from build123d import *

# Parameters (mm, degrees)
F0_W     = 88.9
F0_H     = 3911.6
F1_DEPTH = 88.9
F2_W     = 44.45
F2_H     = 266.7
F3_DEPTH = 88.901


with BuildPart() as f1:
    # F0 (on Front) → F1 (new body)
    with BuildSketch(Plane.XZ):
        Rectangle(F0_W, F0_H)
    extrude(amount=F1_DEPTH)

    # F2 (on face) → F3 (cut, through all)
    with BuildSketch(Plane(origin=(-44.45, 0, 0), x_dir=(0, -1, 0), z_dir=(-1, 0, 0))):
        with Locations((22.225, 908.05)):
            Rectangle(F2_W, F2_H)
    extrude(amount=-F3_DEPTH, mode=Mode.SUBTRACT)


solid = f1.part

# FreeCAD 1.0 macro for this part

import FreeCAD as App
import Part
import Sketcher
Q = App.Units.Quantity


def add_polygon(sketch, points):
    """Adds a closed chain of lines whose ends are joined by coincident constraints."""
    first, n = sketch.GeometryCount, len(points)
    for a, b in zip(points, points[1:] + points[:1]):
        sketch.addGeometry(Part.LineSegment(App.Vector(*a, 0), App.Vector(*b, 0)), False)
    for i in range(n):
        sketch.addConstraint(Sketcher.Constraint("Coincident", first + i, 2, first + (i + 1) % n, 1))

doc = App.newDocument("Part")
params = doc.addObject("Spreadsheet::Sheet", "Params")
for row, (alias, value) in enumerate([
    ("sketch1_height", "154 in"),
    ("sketch1_width", "3.5 in"),
    ("pad1_length", "3.5 in"),
    ("sketch2_height", "10.5 in"),
    ("sketch2_width", "1.75 in"),
], start=1):
    params.set(f"A{row}", alias)
    params.set(f"B{row}", "=" + value)
    params.setAlias(f"B{row}", alias)

body = doc.addObject("PartDesign::Body", "Body")

# Sketch on XZ plane
sketch1 = body.newObject("Sketcher::SketchObject", "Sketch")
sketch1.AttachmentSupport = (doc.getObject("XZ_Plane"), [""])
sketch1.MapMode = "FlatFace"
add_polygon(sketch1, [(-44, 1956), (-44, -1956), (44, -1956), (44, 1956)])  # lines 0-3
sketch1.addConstraint([
    Sketcher.Constraint("Vertical", 0),
    Sketcher.Constraint("Horizontal", 1),
    Sketcher.Constraint("Vertical", 2),
    Sketcher.Constraint("Horizontal", 3),
    Sketcher.Constraint("Symmetric", 0, 2, 2, 2, -1, 1),
    Sketcher.Constraint("DistanceY", 0, 2, 0, 1, Q("154 in")),
    Sketcher.Constraint("DistanceX", 1, 1, 1, 2, Q("3.5 in")),
])
sketch1.setExpression("Constraints[9]", "Params.sketch1_height")
sketch1.setExpression("Constraints[10]", "Params.sketch1_width")
pad1 = body.newObject("PartDesign::Pad", "Pad")
pad1.Profile = sketch1
pad1.setExpression("Length", "Params.pad1_length")

# Sketch on YZ plane
sketch2 = body.newObject("Sketcher::SketchObject", "Sketch001")
sketch2.AttachmentSupport = (doc.getObject("YZ_Plane"), [""])
sketch2.MapMode = "FlatFace"
sketch2.AttachmentOffset = App.Placement(App.Vector(0, 0, -1.75 * 25.4), App.Rotation())
add_polygon(sketch2, [(0, 1041), (0, 775), (-44, 775), (-44, 1041)])  # lines 0-3
sketch2.addConstraint([
    Sketcher.Constraint("Vertical", 0),
    Sketcher.Constraint("Horizontal", 1),
    Sketcher.Constraint("Vertical", 2),
    Sketcher.Constraint("Horizontal", 3),
    Sketcher.Constraint("PointOnObject", 0, 2, -2),
    Sketcher.Constraint("DistanceY", 0, 2, 0, 1, Q("10.5 in")),
    Sketcher.Constraint("DistanceY", -1, 1, 2, 2, Q("41 in")),
    Sketcher.Constraint("DistanceX", 1, 2, 1, 1, Q("1.75 in")),
])
sketch2.setExpression("Constraints[9]", "Params.sketch2_height")
sketch2.setExpression("Constraints[11]", "Params.sketch2_width")
pocket1 = body.newObject("PartDesign::Pocket", "Pocket")
pocket1.Profile = sketch2
pocket1.Type = "ThroughAll"
pocket1.Reversed = True

doc.recompute()
